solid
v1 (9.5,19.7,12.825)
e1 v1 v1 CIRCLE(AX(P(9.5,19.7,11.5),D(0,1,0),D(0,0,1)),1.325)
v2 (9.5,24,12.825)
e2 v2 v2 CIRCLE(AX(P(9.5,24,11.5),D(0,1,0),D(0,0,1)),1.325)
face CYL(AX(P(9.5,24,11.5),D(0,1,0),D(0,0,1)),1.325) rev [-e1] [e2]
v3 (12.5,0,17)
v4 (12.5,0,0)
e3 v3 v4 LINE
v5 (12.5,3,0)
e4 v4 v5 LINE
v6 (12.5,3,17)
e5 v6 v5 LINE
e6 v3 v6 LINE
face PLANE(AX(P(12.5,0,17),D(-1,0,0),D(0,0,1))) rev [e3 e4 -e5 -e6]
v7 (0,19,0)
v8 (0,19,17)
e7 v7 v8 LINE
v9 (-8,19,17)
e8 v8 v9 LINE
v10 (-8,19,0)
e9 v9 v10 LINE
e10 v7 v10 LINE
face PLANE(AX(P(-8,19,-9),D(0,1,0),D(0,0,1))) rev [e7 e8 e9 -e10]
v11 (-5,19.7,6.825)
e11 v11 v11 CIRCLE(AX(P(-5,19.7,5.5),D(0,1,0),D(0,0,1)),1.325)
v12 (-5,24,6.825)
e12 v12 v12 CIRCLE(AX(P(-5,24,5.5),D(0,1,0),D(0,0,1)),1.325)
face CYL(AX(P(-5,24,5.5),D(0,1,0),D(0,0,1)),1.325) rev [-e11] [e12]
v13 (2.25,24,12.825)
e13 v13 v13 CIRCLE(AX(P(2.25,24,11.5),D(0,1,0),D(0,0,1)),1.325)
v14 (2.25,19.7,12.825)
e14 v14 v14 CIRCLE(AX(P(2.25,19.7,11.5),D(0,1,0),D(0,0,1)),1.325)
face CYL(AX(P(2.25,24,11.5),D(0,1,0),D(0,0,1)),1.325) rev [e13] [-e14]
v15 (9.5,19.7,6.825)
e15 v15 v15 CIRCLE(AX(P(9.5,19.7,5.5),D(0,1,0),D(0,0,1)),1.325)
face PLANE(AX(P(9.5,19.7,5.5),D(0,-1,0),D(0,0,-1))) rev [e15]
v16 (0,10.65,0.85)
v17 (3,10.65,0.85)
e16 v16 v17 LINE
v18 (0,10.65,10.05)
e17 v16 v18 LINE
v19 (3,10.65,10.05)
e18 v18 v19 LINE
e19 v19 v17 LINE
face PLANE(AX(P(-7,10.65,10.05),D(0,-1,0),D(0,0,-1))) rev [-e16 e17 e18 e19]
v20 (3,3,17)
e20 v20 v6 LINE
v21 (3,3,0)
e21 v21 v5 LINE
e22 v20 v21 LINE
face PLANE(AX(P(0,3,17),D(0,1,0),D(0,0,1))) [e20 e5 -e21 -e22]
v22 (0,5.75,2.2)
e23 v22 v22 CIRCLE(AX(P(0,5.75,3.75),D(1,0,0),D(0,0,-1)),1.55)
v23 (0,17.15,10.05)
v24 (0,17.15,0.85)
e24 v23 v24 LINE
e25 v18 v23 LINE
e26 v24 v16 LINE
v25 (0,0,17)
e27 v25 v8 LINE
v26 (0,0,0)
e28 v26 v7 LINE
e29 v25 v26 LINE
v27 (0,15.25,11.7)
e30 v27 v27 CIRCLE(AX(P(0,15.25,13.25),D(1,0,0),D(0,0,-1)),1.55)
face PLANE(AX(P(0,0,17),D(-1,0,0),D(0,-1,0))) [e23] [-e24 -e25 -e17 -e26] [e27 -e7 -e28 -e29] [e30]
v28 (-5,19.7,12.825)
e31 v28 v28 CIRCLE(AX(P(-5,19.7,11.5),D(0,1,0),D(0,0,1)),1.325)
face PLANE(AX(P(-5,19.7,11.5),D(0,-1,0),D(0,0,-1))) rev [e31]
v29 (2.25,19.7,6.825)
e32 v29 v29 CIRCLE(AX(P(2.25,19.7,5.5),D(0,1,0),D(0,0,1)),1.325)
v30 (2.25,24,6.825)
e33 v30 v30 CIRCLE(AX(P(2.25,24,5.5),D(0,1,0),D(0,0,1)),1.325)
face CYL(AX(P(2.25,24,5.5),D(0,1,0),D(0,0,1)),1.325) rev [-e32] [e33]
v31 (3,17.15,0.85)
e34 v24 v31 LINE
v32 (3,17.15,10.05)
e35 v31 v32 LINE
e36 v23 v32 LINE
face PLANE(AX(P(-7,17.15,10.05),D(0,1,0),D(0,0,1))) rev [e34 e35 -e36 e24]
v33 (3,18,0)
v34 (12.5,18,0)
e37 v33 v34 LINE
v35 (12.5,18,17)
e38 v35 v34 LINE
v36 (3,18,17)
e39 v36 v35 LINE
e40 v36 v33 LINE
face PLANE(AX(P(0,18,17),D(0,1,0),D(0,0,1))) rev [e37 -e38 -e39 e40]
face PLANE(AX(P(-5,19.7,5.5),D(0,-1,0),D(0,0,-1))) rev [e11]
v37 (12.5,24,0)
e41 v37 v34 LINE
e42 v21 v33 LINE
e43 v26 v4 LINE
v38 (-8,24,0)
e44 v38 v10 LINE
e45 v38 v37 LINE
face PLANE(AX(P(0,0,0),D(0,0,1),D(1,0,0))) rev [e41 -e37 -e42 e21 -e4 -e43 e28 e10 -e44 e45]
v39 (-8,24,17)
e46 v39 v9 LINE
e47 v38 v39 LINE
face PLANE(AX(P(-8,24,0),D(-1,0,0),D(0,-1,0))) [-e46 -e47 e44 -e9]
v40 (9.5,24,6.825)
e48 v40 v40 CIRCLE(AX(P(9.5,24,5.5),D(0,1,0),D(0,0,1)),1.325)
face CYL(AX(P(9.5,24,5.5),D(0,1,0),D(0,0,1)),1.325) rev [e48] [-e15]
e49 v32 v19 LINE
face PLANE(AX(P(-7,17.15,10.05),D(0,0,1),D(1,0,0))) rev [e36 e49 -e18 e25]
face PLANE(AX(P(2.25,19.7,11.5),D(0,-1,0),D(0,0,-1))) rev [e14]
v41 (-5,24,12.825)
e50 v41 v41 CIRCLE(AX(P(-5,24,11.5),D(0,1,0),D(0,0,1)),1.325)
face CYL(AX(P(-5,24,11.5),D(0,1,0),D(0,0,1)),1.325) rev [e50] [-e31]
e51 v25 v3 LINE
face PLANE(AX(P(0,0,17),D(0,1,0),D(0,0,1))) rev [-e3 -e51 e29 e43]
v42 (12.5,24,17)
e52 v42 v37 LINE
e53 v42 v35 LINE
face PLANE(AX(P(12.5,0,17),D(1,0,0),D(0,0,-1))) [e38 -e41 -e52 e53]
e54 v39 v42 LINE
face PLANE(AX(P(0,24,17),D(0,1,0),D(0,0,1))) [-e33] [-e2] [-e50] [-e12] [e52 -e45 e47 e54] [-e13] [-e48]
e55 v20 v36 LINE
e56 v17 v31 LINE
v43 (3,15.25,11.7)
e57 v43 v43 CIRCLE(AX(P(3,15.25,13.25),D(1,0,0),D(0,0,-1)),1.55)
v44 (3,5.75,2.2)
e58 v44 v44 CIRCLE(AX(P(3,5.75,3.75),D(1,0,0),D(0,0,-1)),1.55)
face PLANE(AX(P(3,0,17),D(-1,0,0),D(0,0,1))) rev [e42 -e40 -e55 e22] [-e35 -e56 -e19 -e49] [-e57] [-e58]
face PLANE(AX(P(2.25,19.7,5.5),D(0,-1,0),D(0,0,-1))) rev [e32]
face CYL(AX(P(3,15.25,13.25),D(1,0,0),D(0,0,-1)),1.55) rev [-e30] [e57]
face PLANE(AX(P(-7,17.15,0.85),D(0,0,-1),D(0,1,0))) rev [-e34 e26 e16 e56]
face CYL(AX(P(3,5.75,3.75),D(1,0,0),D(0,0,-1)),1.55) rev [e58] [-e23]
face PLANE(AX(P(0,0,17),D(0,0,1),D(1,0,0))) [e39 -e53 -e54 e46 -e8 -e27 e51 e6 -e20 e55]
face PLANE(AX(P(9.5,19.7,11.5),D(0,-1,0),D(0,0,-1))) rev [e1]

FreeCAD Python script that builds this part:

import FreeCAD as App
import Part
import Sketcher

V = App.Vector


def add_polygon(sketch, points):
    """Adds a closed chain of lines whose ends are joined by coincident constraints."""
    first, n = sketch.GeometryCount, len(points)
    for a, b in zip(points, points[1:] + points[:1]):
        sketch.addGeometry(Part.LineSegment(App.Vector(*a, 0), App.Vector(*b, 0)), False)
    for i in range(n):
        sketch.addConstraint(Sketcher.Constraint("Coincident", first + i, 2, first + (i + 1) % n, 1))

doc = App.newDocument("Part")
params = doc.addObject("Spreadsheet::Sheet", "Params")
for row, (alias, value) in enumerate([
    ("sketch1_height", "3 mm"),
    ("sketch1_height2", "15 mm"),
    ("sketch1_height3", "6 mm"),
    ("sketch1_width", "12.5 mm"),
    ("sketch1_width2", "9.5 mm"),
    ("pad1_length", "17 mm"),
    ("sketch2_diameter", "3.1 mm"),
    ("hole_diameter", "3.1 mm"),
    ("sketch3_diameter", "2.65 mm"),
    ("hole2_diameter", "2.65 mm"),
    ("hole2_depth", "4.3 mm"),
    ("sketch4_width", "6.5 mm"),
    ("sketch4_height", "9.2 mm"),
    ("pocket1_length", "10 mm"),
    ("sketch5_width", "8 mm"),
    ("sketch5_height", "6 mm"),
    ("pad2_length", "17 mm"),
    ("sketch6_diameter", "2.65 mm"),
    ("hole3_diameter", "2.65 mm"),
    ("hole3_depth", "4.3 mm"),
    ("sketch7_width", "8 mm"),
    ("sketch7_height", "1 mm"),
    ("pocket2_length", "26 mm"),
], start=1):
    params.set(f"A{row}", alias)
    params.set(f"B{row}", "=" + value)
    params.setAlias(f"B{row}", alias)

body = doc.addObject("PartDesign::Body", "Body")

# Sketch on XY plane
sketch1 = body.newObject("Sketcher::SketchObject", "Sketch")
sketch1.AttachmentSupport = (doc.getObject("XY_Plane"), [""])
sketch1.MapMode = "FlatFace"
add_polygon(sketch1, [(0, 0), (12.5, 0), (12.5, 3), (3, 3), (3, 18), (12.5, 18), (12.5, 24), (0, 24)])  # lines 0-7
sketch1.addConstraint(Sketcher.Constraint("Horizontal", 0))
sketch1.addConstraint(Sketcher.Constraint("Vertical", 1))
sketch1.addConstraint(Sketcher.Constraint("Horizontal", 2))
sketch1.addConstraint(Sketcher.Constraint("Vertical", 3))
sketch1.addConstraint(Sketcher.Constraint("Horizontal", 4))
sketch1.addConstraint(Sketcher.Constraint("Vertical", 5))
sketch1.addConstraint(Sketcher.Constraint("Horizontal", 6))
sketch1.addConstraint(Sketcher.Constraint("Vertical", 7))
sketch1.addConstraint(Sketcher.Constraint("Coincident", 7, 2, -1, 1))
sketch1.addConstraint(Sketcher.Constraint("Vertical", 1, 2, 4, 2))
sketch1.addConstraint(Sketcher.Constraint("DistanceY", 1, 1, 1, 2, 3.0))
sketch1.addConstraint(Sketcher.Constraint("DistanceY", 3, 1, 3, 2, 15.0))
sketch1.addConstraint(Sketcher.Constraint("DistanceY", 5, 1, 5, 2, 6.0))
sketch1.addConstraint(Sketcher.Constraint("DistanceX", 0, 1, 0, 2, 12.5))
sketch1.addConstraint(Sketcher.Constraint("DistanceX", 2, 2, 2, 1, 9.5))
sketch1.setExpression("Constraints[18]", "Params.sketch1_height")
sketch1.setExpression("Constraints[19]", "Params.sketch1_height2")
sketch1.setExpression("Constraints[20]", "Params.sketch1_height3")
sketch1.setExpression("Constraints[21]", "Params.sketch1_width")
sketch1.setExpression("Constraints[22]", "Params.sketch1_width2")
pad1 = body.newObject("PartDesign::Pad", "Pad")
pad1.Profile = sketch1
pad1.setExpression("Length", "Params.pad1_length")

# Sketch on YZ plane
sketch2 = body.newObject("Sketcher::SketchObject", "Sketch001")
sketch2.AttachmentSupport = (doc.getObject("YZ_Plane"), [""])
sketch2.MapMode = "FlatFace"
sketch2.AttachmentOffset = App.Placement(V(0, 0, 3), App.Rotation())
sketch2.addGeometry(Part.Circle(V(15.25, 13.25, 0), V(0, 0, 1), 1.55), False)
sketch2.addGeometry(Part.Circle(V(5.75, 3.75, 0), V(0, 0, 1), 1.55), False)
sketch2.addConstraint(Sketcher.Constraint("Equal", 0, 1))
sketch2.addConstraint(Sketcher.Constraint("Diameter", 0, 3.1))
sketch2.addConstraint(Sketcher.Constraint("DistanceX", 1, 3, 0, 3, 9.5))
sketch2.addConstraint(Sketcher.Constraint("DistanceY", 1, 3, 0, 3, 9.5))
sketch2.addConstraint(Sketcher.Constraint("DistanceX", -1, 1, 0, 3, 15.25))
sketch2.addConstraint(Sketcher.Constraint("DistanceY", -1, 1, 0, 3, 13.25))
sketch2.setExpression("Constraints[1]", "Params.sketch2_diameter")
doc.recompute()
hole = body.newObject("PartDesign::Hole", "Hole")
hole.Profile = sketch2
hole.ThreadType = "None"
hole.setExpression("Diameter", "Params.hole_diameter")
hole.DepthType = "ThroughAll"

# Sketch on XZ plane
sketch3 = body.newObject("Sketcher::SketchObject", "Sketch002")
sketch3.AttachmentSupport = (doc.getObject("XZ_Plane"), [""])
sketch3.MapMode = "FlatFace"
sketch3.AttachmentOffset = App.Placement(V(0, 0, -24), App.Rotation())
sketch3.addGeometry(Part.Circle(V(2.25, 5.5, 0), V(0, 0, 1), 1.325), False)
sketch3.addGeometry(Part.Circle(V(2.25, 11.5, 0), V(0, 0, 1), 1.325), False)
sketch3.addGeometry(Part.Circle(V(9.5, 11.5, 0), V(0, 0, 1), 1.325), False)
sketch3.addGeometry(Part.Circle(V(9.5, 5.5, 0), V(0, 0, 1), 1.325), False)
sketch3.addConstraint(Sketcher.Constraint("Equal", 0, 1))
sketch3.addConstraint(Sketcher.Constraint("Equal", 1, 2))
sketch3.addConstraint(Sketcher.Constraint("Equal", 2, 3))
sketch3.addConstraint(Sketcher.Constraint("Horizontal", 1, 3, 2, 3))
sketch3.addConstraint(Sketcher.Constraint("Horizontal", 0, 3, 3, 3))
sketch3.addConstraint(Sketcher.Constraint("Vertical", 0, 3, 1, 3))
sketch3.addConstraint(Sketcher.Constraint("Vertical", 2, 3, 3, 3))
sketch3.addConstraint(Sketcher.Constraint("Diameter", 0, 2.65))
sketch3.addConstraint(Sketcher.Constraint("DistanceY", 0, 3, 1, 3, 6.0))
sketch3.addConstraint(Sketcher.Constraint("DistanceY", -1, 1, 0, 3, 5.5))
sketch3.addConstraint(Sketcher.Constraint("DistanceX", -1, 1, 2, 3, 9.5))
sketch3.addConstraint(Sketcher.Constraint("DistanceX", -1, 1, 0, 3, 2.25))
sketch3.setExpression("Constraints[7]", "Params.sketch3_diameter")
doc.recompute()
hole2 = body.newObject("PartDesign::Hole", "Hole001")
hole2.Profile = sketch3
hole2.ThreadType = "None"
hole2.setExpression("Diameter", "Params.hole2_diameter")
hole2.DepthType = "Dimension"
hole2.setExpression("Depth", "Params.hole2_depth")
hole2.DrillPoint = "Flat"
hole2.Reversed = True

# Sketch on YZ plane
sketch4 = body.newObject("Sketcher::SketchObject", "Sketch003")
sketch4.AttachmentSupport = (doc.getObject("YZ_Plane"), [""])
sketch4.MapMode = "FlatFace"
sketch4.AttachmentOffset = App.Placement(V(0, 0, 3), App.Rotation())
add_polygon(sketch4, [(17.15, 10.05), (10.65, 10.05), (10.65, 0.85), (17.15, 0.85)])  # lines 0-3
sketch4.addConstraint(Sketcher.Constraint("Horizontal", 0))
sketch4.addConstraint(Sketcher.Constraint("Vertical", 1))
sketch4.addConstraint(Sketcher.Constraint("Horizontal", 2))
sketch4.addConstraint(Sketcher.Constraint("Vertical", 3))
sketch4.addConstraint(Sketcher.Constraint("DistanceX", 0, 2, 0, 1, 6.5))
sketch4.addConstraint(Sketcher.Constraint("DistanceY", 1, 2, 1, 1, 9.2))
sketch4.addConstraint(Sketcher.Constraint("DistanceX", -1, 1, 0, 2, 10.65))
sketch4.addConstraint(Sketcher.Constraint("DistanceY", -1, 1, 0, 2, 10.05))
sketch4.setExpression("Constraints[8]", "Params.sketch4_width")
sketch4.setExpression("Constraints[9]", "Params.sketch4_height")
pocket1 = body.newObject("PartDesign::Pocket", "Pocket")
pocket1.Profile = sketch4
pocket1.setExpression("Length", "Params.pocket1_length")

# Sketch on XY plane
sketch5 = body.newObject("Sketcher::SketchObject", "Sketch004")
sketch5.AttachmentSupport = (doc.getObject("XY_Plane"), [""])
sketch5.MapMode = "FlatFace"
sketch5.AttachmentOffset = App.Placement(V(0, 0, 17), App.Rotation())
add_polygon(sketch5, [(-8, 24), (-8, 18), (0, 18), (0, 24)])  # lines 0-3
sketch5.addConstraint(Sketcher.Constraint("Vertical", 0))
sketch5.addConstraint(Sketcher.Constraint("Horizontal", 1))
sketch5.addConstraint(Sketcher.Constraint("Vertical", 2))
sketch5.addConstraint(Sketcher.Constraint("Horizontal", 3))
sketch5.addConstraint(Sketcher.Constraint("PointOnObject", 1, 2, -2))
sketch5.addConstraint(Sketcher.Constraint("DistanceX", 1, 1, 1, 2, 8.0))
sketch5.addConstraint(Sketcher.Constraint("DistanceY", 0, 2, 0, 1, 6.0))
sketch5.addConstraint(Sketcher.Constraint("DistanceY", -1, 1, 0, 2, 18.0))
sketch5.setExpression("Constraints[9]", "Params.sketch5_width")
sketch5.setExpression("Constraints[10]", "Params.sketch5_height")
pad2 = body.newObject("PartDesign::Pad", "Pad001")
pad2.Profile = sketch5
pad2.setExpression("Length", "Params.pad2_length")
pad2.Reversed = True

# Sketch on XZ plane
sketch6 = body.newObject("Sketcher::SketchObject", "Sketch005")
sketch6.AttachmentSupport = (doc.getObject("XZ_Plane"), [""])
sketch6.MapMode = "FlatFace"
sketch6.AttachmentOffset = App.Placement(V(0, 0, -24), App.Rotation())
sketch6.addGeometry(Part.Circle(V(-5, 11.5, 0), V(0, 0, 1), 1.325), False)
sketch6.addGeometry(Part.Circle(V(-5, 5.5, 0), V(0, 0, 1), 1.325), False)
sketch6.addConstraint(Sketcher.Constraint("Equal", 0, 1))
sketch6.addConstraint(Sketcher.Constraint("Vertical", 0, 3, 1, 3))
sketch6.addConstraint(Sketcher.Constraint("Diameter", 0, 2.65))
sketch6.addConstraint(Sketcher.Constraint("DistanceX", 0, 3, -1, 1, 5.0))
sketch6.addConstraint(Sketcher.Constraint("DistanceY", 1, 3, 0, 3, 6.0))
sketch6.addConstraint(Sketcher.Constraint("DistanceY", -1, 1, 0, 3, 11.5))
sketch6.setExpression("Constraints[2]", "Params.sketch6_diameter")
doc.recompute()
hole3 = body.newObject("PartDesign::Hole", "Hole002")
hole3.Profile = sketch6
hole3.ThreadType = "None"
hole3.setExpression("Diameter", "Params.hole3_diameter")
hole3.DepthType = "Dimension"
hole3.setExpression("Depth", "Params.hole3_depth")
hole3.DrillPoint = "Flat"
hole3.Reversed = True

# Sketch on XY plane
sketch7 = body.newObject("Sketcher::SketchObject", "Sketch006")
sketch7.AttachmentSupport = (doc.getObject("XY_Plane"), [""])
sketch7.MapMode = "FlatFace"
sketch7.AttachmentOffset = App.Placement(V(0, 0, 17), App.Rotation())
add_polygon(sketch7, [(-8, 19), (-8, 18), (0, 18), (0, 19)])  # lines 0-3
sketch7.addConstraint(Sketcher.Constraint("Vertical", 0))
sketch7.addConstraint(Sketcher.Constraint("Horizontal", 1))
sketch7.addConstraint(Sketcher.Constraint("Vertical", 2))
sketch7.addConstraint(Sketcher.Constraint("Horizontal", 3))
sketch7.addConstraint(Sketcher.Constraint("PointOnObject", 1, 2, -2))
sketch7.addConstraint(Sketcher.Constraint("DistanceX", 1, 1, 1, 2, 8.0))
sketch7.addConstraint(Sketcher.Constraint("DistanceY", 0, 2, 0, 1, 1.0))
sketch7.addConstraint(Sketcher.Constraint("DistanceY", -1, 1, 0, 2, 18.0))
sketch7.setExpression("Constraints[9]", "Params.sketch7_width")
sketch7.setExpression("Constraints[10]", "Params.sketch7_height")
pocket2 = body.newObject("PartDesign::Pocket", "Pocket001")
pocket2.Profile = sketch7
pocket2.setExpression("Length", "Params.pocket2_length")

doc.recompute()
